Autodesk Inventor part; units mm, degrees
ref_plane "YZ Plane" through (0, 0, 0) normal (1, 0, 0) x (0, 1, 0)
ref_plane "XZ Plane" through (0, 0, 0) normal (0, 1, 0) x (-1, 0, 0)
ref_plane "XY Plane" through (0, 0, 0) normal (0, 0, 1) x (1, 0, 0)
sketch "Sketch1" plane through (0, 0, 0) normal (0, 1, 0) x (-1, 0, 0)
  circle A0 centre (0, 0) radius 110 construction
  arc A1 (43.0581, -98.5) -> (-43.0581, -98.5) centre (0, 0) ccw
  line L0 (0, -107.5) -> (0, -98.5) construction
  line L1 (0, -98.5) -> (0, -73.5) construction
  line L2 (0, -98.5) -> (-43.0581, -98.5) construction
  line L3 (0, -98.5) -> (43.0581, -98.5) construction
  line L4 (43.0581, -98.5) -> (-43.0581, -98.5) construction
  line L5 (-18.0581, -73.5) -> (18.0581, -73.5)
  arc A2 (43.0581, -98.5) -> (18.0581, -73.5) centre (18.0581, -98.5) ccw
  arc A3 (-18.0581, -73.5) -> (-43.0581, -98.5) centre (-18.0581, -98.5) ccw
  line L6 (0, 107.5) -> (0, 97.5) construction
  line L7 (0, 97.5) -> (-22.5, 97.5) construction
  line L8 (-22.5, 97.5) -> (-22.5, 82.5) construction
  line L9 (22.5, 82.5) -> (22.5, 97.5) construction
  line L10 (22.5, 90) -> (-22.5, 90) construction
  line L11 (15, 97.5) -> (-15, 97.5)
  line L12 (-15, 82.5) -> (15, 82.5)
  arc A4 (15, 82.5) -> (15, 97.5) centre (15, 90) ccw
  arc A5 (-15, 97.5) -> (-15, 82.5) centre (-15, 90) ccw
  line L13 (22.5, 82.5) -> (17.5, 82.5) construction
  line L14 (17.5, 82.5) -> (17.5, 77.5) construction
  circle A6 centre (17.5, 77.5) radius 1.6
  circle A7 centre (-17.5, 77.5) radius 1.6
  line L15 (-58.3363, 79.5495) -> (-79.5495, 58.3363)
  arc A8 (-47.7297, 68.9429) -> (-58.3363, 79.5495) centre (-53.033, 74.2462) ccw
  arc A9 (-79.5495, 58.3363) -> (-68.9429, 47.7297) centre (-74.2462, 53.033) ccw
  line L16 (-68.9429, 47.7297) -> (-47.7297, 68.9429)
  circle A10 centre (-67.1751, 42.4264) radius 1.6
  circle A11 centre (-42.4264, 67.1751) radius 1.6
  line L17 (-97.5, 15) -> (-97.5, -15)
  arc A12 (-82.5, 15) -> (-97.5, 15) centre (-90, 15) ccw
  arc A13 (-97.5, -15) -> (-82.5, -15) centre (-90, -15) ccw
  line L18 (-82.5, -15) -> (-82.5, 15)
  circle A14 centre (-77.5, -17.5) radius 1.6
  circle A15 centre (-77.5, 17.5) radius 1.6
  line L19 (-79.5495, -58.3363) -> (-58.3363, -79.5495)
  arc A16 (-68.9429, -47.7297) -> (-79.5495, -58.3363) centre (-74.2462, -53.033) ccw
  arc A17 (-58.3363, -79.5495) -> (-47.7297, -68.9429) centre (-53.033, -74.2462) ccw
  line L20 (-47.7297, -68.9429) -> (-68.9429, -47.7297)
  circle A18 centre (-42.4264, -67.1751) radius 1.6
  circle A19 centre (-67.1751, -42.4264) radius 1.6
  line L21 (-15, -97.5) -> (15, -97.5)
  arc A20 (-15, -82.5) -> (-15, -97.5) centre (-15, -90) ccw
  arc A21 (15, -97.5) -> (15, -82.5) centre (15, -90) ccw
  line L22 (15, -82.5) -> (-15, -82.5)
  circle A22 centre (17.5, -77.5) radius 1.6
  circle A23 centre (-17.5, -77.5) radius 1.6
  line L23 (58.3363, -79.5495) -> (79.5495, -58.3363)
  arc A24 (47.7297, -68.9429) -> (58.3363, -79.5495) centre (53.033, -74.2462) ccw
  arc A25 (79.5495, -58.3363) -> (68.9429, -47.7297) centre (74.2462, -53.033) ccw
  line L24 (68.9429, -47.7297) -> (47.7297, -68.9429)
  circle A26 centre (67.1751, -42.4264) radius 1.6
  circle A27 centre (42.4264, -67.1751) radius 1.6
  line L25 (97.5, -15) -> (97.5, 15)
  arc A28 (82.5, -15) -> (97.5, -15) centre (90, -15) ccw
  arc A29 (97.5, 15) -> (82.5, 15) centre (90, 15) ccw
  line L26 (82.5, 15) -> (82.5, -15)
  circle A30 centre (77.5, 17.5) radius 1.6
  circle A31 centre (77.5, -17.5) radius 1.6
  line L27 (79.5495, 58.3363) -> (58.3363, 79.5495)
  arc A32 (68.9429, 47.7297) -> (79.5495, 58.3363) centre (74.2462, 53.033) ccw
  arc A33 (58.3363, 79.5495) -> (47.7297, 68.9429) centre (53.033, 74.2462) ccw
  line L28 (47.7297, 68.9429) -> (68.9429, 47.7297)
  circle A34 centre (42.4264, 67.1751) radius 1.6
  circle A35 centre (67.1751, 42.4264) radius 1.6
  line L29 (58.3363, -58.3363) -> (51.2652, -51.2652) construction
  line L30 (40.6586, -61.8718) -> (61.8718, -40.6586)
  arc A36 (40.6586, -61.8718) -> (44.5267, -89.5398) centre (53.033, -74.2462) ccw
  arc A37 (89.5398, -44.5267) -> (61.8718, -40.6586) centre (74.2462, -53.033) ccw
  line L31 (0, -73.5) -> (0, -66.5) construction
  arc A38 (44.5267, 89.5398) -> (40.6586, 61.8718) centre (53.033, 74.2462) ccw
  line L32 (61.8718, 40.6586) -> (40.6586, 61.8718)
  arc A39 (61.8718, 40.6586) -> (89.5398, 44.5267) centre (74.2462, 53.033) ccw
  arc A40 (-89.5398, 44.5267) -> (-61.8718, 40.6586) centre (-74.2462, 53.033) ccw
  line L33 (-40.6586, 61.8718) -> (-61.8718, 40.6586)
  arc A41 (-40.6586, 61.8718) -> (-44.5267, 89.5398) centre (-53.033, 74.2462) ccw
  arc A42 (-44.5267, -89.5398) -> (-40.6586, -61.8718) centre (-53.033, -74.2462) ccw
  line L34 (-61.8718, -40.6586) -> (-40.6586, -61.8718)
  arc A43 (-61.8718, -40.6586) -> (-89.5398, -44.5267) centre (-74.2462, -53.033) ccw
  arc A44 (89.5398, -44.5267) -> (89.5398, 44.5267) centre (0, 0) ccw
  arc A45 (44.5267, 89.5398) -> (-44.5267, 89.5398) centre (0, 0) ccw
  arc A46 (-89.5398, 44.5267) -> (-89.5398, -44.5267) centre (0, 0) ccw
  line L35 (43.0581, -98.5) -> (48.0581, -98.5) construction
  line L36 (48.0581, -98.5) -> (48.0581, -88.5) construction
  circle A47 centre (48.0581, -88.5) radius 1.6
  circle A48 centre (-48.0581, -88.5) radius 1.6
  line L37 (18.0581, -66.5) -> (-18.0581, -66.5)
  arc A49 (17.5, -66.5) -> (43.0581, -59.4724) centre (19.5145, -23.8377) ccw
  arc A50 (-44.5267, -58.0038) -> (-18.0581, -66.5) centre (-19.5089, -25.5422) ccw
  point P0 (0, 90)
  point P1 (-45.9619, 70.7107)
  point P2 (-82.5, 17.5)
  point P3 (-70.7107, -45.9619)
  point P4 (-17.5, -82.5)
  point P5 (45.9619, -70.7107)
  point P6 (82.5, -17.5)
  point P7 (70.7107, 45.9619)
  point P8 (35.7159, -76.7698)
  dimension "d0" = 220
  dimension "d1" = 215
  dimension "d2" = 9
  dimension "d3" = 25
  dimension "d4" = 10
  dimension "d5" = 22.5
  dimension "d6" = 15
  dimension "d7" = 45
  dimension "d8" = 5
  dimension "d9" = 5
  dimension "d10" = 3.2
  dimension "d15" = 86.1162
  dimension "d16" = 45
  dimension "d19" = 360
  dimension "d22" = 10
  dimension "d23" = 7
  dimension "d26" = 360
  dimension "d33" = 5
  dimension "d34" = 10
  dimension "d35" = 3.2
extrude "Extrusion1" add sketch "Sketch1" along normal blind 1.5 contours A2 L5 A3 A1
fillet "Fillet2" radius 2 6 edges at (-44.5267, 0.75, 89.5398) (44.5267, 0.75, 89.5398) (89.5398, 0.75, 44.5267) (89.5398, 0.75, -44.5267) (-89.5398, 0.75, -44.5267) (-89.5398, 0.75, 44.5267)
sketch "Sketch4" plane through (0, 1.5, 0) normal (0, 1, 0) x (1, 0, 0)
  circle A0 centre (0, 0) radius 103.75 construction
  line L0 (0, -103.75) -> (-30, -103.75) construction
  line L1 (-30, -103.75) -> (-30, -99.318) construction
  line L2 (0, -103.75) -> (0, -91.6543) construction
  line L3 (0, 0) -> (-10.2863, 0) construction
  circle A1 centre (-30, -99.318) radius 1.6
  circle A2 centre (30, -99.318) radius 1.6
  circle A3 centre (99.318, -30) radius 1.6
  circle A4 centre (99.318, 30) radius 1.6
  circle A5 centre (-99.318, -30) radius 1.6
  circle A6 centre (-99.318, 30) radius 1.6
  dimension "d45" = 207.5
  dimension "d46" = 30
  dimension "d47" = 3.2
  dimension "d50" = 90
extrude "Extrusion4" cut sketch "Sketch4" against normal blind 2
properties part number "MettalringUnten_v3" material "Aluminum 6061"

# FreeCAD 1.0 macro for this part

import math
import FreeCAD as App
import Part
import Sketcher
from FreeCAD import Vector


def edges_at(feature, points):
    """Names of the edges that pass closest to the given points."""
    edges = feature.Shape.Edges
    near = lambda p: min(range(len(edges)), key=lambda i: edges[i].distToShape(Part.Vertex(*p))[0])
    return sorted({f"Edge{near(p) + 1}" for p in points})

doc = App.newDocument("Part")
params = doc.addObject("Spreadsheet::Sheet", "Params")
for row, (alias, value) in enumerate([
    ("sketch1_radius", "25 mm"),
    ("sketch1_diameter", "3.2 mm"),
    ("sketch1_radius2", "107.5 mm"),
    ("sketch1_radius3", "7.5 mm"),
    ("sketch1_radius4", "100 mm"),
    ("pad1_length", "1.5 mm"),
    ("fillet_radius", "2 mm"),
    ("sketch2_diameter", "3.2 mm"),
    ("pocket1_length", "2 mm"),
], start=1):
    params.set(f"A{row}", alias)
    params.set(f"B{row}", "=" + value)
    params.setAlias(f"B{row}", alias)

body = doc.addObject("PartDesign::Body", "Body")

sketch1 = body.newObject("Sketcher::SketchObject", "Sketch")
sketch1.AttachmentSupport = (doc.getObject("XZ_Plane"), [""])
sketch1.MapMode = "FlatFace"
sketch1.addGeometry(Part.ArcOfCircle(Part.Circle(Vector(-18.0581, -98.5, 0), Vector(0, 0, 1), 25), math.radians(90), math.radians(180)), False)
sketch1.addGeometry(Part.ArcOfCircle(Part.Circle(Vector(0, 0, 0), Vector(0, 0, 1), 107.5), math.radians(-66.38803), math.radians(246.38803)), False)
sketch1.addGeometry(Part.ArcOfCircle(Part.Circle(Vector(18.0581, -98.5, 0), Vector(0, 0, 1), 25), math.radians(0), math.radians(90)), False)
sketch1.addGeometry(Part.LineSegment(Vector(18.0581, -73.5, 0), Vector(-18.0581, -73.5, 0)), False)
sketch1.addGeometry(Part.LineSegment(Vector(58.3363, -79.5495, 0), Vector(79.5495, -58.3363, 0)), False)
sketch1.addGeometry(Part.ArcOfCircle(Part.Circle(Vector(74.2462, -53.033, 0), Vector(0, 0, 1), 7.499999), math.radians(-45), math.radians(135)), False)
sketch1.addGeometry(Part.LineSegment(Vector(68.9429, -47.7297, 0), Vector(47.7297, -68.9429, 0)), False)
sketch1.addGeometry(Part.ArcOfCircle(Part.Circle(Vector(53.033, -74.2462, 0), Vector(0, 0, 1), 7.499999), math.radians(135), math.radians(315)), False)
sketch1.addGeometry(Part.Circle(Vector(48.0581, -88.5, 0), Vector(0, 0, 1), 1.6), False)
sketch1.addGeometry(Part.Circle(Vector(42.4264, -67.1751, 0), Vector(0, 0, 1), 1.6), False)
sketch1.addGeometry(Part.Circle(Vector(67.1751, -42.4264, 0), Vector(0, 0, 1), 1.6), False)
sketch1.addGeometry(Part.Circle(Vector(-48.0581, -88.5, 0), Vector(0, 0, 1), 1.6), False)
sketch1.addGeometry(Part.Circle(Vector(-42.4264, -67.1751, 0), Vector(0, 0, 1), 1.6), False)
sketch1.addGeometry(Part.LineSegment(Vector(-79.5495, -58.3363, 0), Vector(-58.3363, -79.5495, 0)), False)
sketch1.addGeometry(Part.ArcOfCircle(Part.Circle(Vector(-53.033, -74.2462, 0), Vector(0, 0, 1), 7.499999), math.radians(-135), math.radians(45)), False)
sketch1.addGeometry(Part.LineSegment(Vector(-47.7297, -68.9429, 0), Vector(-68.9429, -47.7297, 0)), False)
sketch1.addGeometry(Part.ArcOfCircle(Part.Circle(Vector(-74.2462, -53.033, 0), Vector(0, 0, 1), 7.499999), math.radians(45), math.radians(225)), False)
sketch1.addGeometry(Part.Circle(Vector(-67.1751, -42.4264, 0), Vector(0, 0, 1), 1.6), False)
sketch1.addGeometry(Part.Circle(Vector(67.1751, 42.4264, 0), Vector(0, 0, 1), 1.6), False)
sketch1.addGeometry(Part.LineSegment(Vector(79.5495, 58.3363, 0), Vector(58.3363, 79.5495, 0)), False)
sketch1.addGeometry(Part.ArcOfCircle(Part.Circle(Vector(53.033, 74.2462, 0), Vector(0, 0, 1), 7.499999), math.radians(45), math.radians(225)), False)
sketch1.addGeometry(Part.LineSegment(Vector(47.7297, 68.9429, 0), Vector(68.9429, 47.7297, 0)), False)
sketch1.addGeometry(Part.ArcOfCircle(Part.Circle(Vector(74.2462, 53.033, 0), Vector(0, 0, 1), 7.499999), math.radians(-135), math.radians(45)), False)
sketch1.addGeometry(Part.Circle(Vector(42.4264, 67.1751, 0), Vector(0, 0, 1), 1.6), False)
sketch1.addGeometry(Part.LineSegment(Vector(-61.8718, -40.6586, 0), Vector(-43.05805, -59.47235, 0)), False)
sketch1.addGeometry(Part.ArcOfCircle(Part.Circle(Vector(-19.5145, -23.8377, 0), Vector(0, 0, 1), 42.709836), math.radians(-123.452464), math.radians(-87.29652)), False)
sketch1.addGeometry(Part.LineSegment(Vector(-17.5, -66.5, 0), Vector(18.0581, -66.5, 0)), False)
sketch1.addGeometry(Part.ArcOfCircle(Part.Circle(Vector(19.5089, -25.5422, 0), Vector(0, 0, 1), 40.983482), math.radians(-92.028673), math.radians(-52.378952)), False)
sketch1.addGeometry(Part.LineSegment(Vector(44.52665, -58.00375, 0), Vector(61.8718, -40.6586, 0)), False)
sketch1.addGeometry(Part.ArcOfCircle(Part.Circle(Vector(74.2462, -53.033, 0), Vector(0, 0, 1), 17.500044), math.radians(29.082811), math.radians(135)), False)
sketch1.addGeometry(Part.ArcOfCircle(Part.Circle(Vector(0, 0, 0), Vector(0, 0, 1), 100.000014), math.radians(-26.440419), math.radians(26.440419)), False)
sketch1.addGeometry(Part.ArcOfCircle(Part.Circle(Vector(74.2462, 53.033, 0), Vector(0, 0, 1), 17.500038), math.radians(-135), math.radians(-29.082811)), False)
sketch1.addGeometry(Part.LineSegment(Vector(61.8718, 40.6586, 0), Vector(40.6586, 61.8718, 0)), False)
sketch1.addGeometry(Part.ArcOfCircle(Part.Circle(Vector(53.033, 74.2462, 0), Vector(0, 0, 1), 17.500044), math.radians(119.082811), math.radians(225)), False)
sketch1.addGeometry(Part.ArcOfCircle(Part.Circle(Vector(0, 0, 0), Vector(0, 0, 1), 100.000014), math.radians(63.559581), math.radians(116.440419)), False)
sketch1.addGeometry(Part.ArcOfCircle(Part.Circle(Vector(-53.033, 74.2462, 0), Vector(0, 0, 1), 17.500038), math.radians(-45), math.radians(60.917189)), False)
sketch1.addGeometry(Part.LineSegment(Vector(-40.6586, 61.8718, 0), Vector(-61.8718, 40.6586, 0)), False)
sketch1.addGeometry(Part.ArcOfCircle(Part.Circle(Vector(-74.2462, 53.033, 0), Vector(0, 0, 1), 17.500044), math.radians(-150.917189), math.radians(-45)), False)
sketch1.addGeometry(Part.ArcOfCircle(Part.Circle(Vector(0, 0, 0), Vector(0, 0, 1), 100.000014), math.radians(153.559581), math.radians(206.440419)), False)
sketch1.addGeometry(Part.ArcOfCircle(Part.Circle(Vector(-74.2462, -53.033, 0), Vector(0, 0, 1), 17.500038), math.radians(45), math.radians(150.917189)), False)
sketch1.addGeometry(Part.Circle(Vector(-67.1751, 42.4264, 0), Vector(0, 0, 1), 1.6), False)
sketch1.addGeometry(Part.Circle(Vector(-42.4264, 67.1751, 0), Vector(0, 0, 1), 1.6), False)
sketch1.addGeometry(Part.LineSegment(Vector(-58.3363, 79.5495, 0), Vector(-79.5495, 58.3363, 0)), False)
sketch1.addGeometry(Part.ArcOfCircle(Part.Circle(Vector(-74.2462, 53.033, 0), Vector(0, 0, 1), 7.499999), math.radians(135), math.radians(315)), False)
sketch1.addGeometry(Part.LineSegment(Vector(-68.9429, 47.7297, 0), Vector(-47.7297, 68.9429, 0)), False)
sketch1.addGeometry(Part.ArcOfCircle(Part.Circle(Vector(-53.033, 74.2462, 0), Vector(0, 0, 1), 7.499999), math.radians(-45), math.radians(135)), False)
sketch1.addConstraint(Sketcher.Constraint("Coincident", 0, 2, 1, 2))
sketch1.addConstraint(Sketcher.Constraint("Coincident", 1, 1, 2, 1))
sketch1.addConstraint(Sketcher.Constraint("Tangent", 2, 2, 3, 1))
sketch1.addConstraint(Sketcher.Constraint("Tangent", 3, 2, 0, 1))
sketch1.addConstraint(Sketcher.Constraint("Tangent", 4, 2, 5, 1))
sketch1.addConstraint(Sketcher.Constraint("Tangent", 5, 2, 6, 1))
sketch1.addConstraint(Sketcher.Constraint("Tangent", 6, 2, 7, 1))
sketch1.addConstraint(Sketcher.Constraint("Tangent", 7, 2, 4, 1))
sketch1.addConstraint(Sketcher.Constraint("Tangent", 13, 2, 14, 1))
sketch1.addConstraint(Sketcher.Constraint("Tangent", 14, 2, 15, 1))
sketch1.addConstraint(Sketcher.Constraint("Tangent", 15, 2, 16, 1))
sketch1.addConstraint(Sketcher.Constraint("Tangent", 16, 2, 13, 1))
sketch1.addConstraint(Sketcher.Constraint("Tangent", 19, 2, 20, 1))
sketch1.addConstraint(Sketcher.Constraint("Tangent", 20, 2, 21, 1))
sketch1.addConstraint(Sketcher.Constraint("Tangent", 21, 2, 22, 1))
sketch1.addConstraint(Sketcher.Constraint("Tangent", 22, 2, 19, 1))
sketch1.addConstraint(Sketcher.Constraint("Coincident", 24, 2, 25, 1))
sketch1.addConstraint(Sketcher.Constraint("Coincident", 25, 2, 26, 1))
sketch1.addConstraint(Sketcher.Constraint("Coincident", 26, 2, 27, 1))
sketch1.addConstraint(Sketcher.Constraint("Coincident", 27, 2, 28, 1))
sketch1.addConstraint(Sketcher.Constraint("Tangent", 28, 2, 29, 2))
sketch1.addConstraint(Sketcher.Constraint("Coincident", 29, 1, 30, 1))
sketch1.addConstraint(Sketcher.Constraint("Coincident", 30, 2, 31, 2))
sketch1.addConstraint(Sketcher.Constraint("Tangent", 31, 1, 32, 1))
sketch1.addConstraint(Sketcher.Constraint("Tangent", 32, 2, 33, 2))
sketch1.addConstraint(Sketcher.Constraint("Coincident", 33, 1, 34, 1))
sketch1.addConstraint(Sketcher.Constraint("Coincident", 34, 2, 35, 2))
sketch1.addConstraint(Sketcher.Constraint("Tangent", 35, 1, 36, 1))
sketch1.addConstraint(Sketcher.Constraint("Tangent", 36, 2, 37, 2))
sketch1.addConstraint(Sketcher.Constraint("Coincident", 37, 1, 38, 1))
sketch1.addConstraint(Sketcher.Constraint("Coincident", 38, 2, 39, 2))
sketch1.addConstraint(Sketcher.Constraint("Tangent", 39, 1, 24, 1))
sketch1.addConstraint(Sketcher.Constraint("Tangent", 42, 2, 43, 1))
sketch1.addConstraint(Sketcher.Constraint("Tangent", 43, 2, 44, 1))
sketch1.addConstraint(Sketcher.Constraint("Tangent", 44, 2, 45, 1))
sketch1.addConstraint(Sketcher.Constraint("Tangent", 45, 2, 42, 1))
sketch1.addConstraint(Sketcher.Constraint("Horizontal", 3))
sketch1.addConstraint(Sketcher.Constraint("Horizontal", 26))
sketch1.addConstraint(Sketcher.Constraint("Coincident", 1, 3, -1, 1))
sketch1.addConstraint(Sketcher.Constraint("Coincident", 30, 3, -1, 1))
sketch1.addConstraint(Sketcher.Constraint("Coincident", 34, 3, -1, 1))
sketch1.addConstraint(Sketcher.Constraint("Coincident", 38, 3, -1, 1))
sketch1.addConstraint(Sketcher.Constraint("Coincident", 29, 3, 5, 3))
sketch1.addConstraint(Sketcher.Constraint("Coincident", 31, 3, 22, 3))
sketch1.addConstraint(Sketcher.Constraint("Coincident", 33, 3, 20, 3))
sketch1.addConstraint(Sketcher.Constraint("Coincident", 39, 3, 16, 3))
sketch1.addConstraint(Sketcher.Constraint("Coincident", 43, 3, 37, 3))
sketch1.addConstraint(Sketcher.Constraint("Coincident", 45, 3, 35, 3))
sketch1.addConstraint(Sketcher.Constraint("Equal", 0, 2))
sketch1.addConstraint(Sketcher.Constraint("Equal", 5, 7))
sketch1.addConstraint(Sketcher.Constraint("Equal", 8, 9))
sketch1.addConstraint(Sketcher.Constraint("Equal", 9, 10))
sketch1.addConstraint(Sketcher.Constraint("Equal", 10, 11))
sketch1.addConstraint(Sketcher.Constraint("Equal", 11, 12))
sketch1.addConstraint(Sketcher.Constraint("Equal", 7, 14))
sketch1.addConstraint(Sketcher.Constraint("Equal", 14, 16))
sketch1.addConstraint(Sketcher.Constraint("Equal", 12, 17))
sketch1.addConstraint(Sketcher.Constraint("Equal", 17, 18))
sketch1.addConstraint(Sketcher.Constraint("Equal", 16, 20))
sketch1.addConstraint(Sketcher.Constraint("Equal", 20, 22))
sketch1.addConstraint(Sketcher.Constraint("Equal", 18, 23))
sketch1.addConstraint(Sketcher.Constraint("Equal", 29, 31))
sketch1.addConstraint(Sketcher.Constraint("Equal", 31, 33))
sketch1.addConstraint(Sketcher.Constraint("Equal", 30, 34))
sketch1.addConstraint(Sketcher.Constraint("Equal", 33, 35))
sketch1.addConstraint(Sketcher.Constraint("Equal", 35, 37))
sketch1.addConstraint(Sketcher.Constraint("Equal", 34, 38))
sketch1.addConstraint(Sketcher.Constraint("Equal", 37, 39))
sketch1.addConstraint(Sketcher.Constraint("Equal", 23, 40))
sketch1.addConstraint(Sketcher.Constraint("Equal", 40, 41))
sketch1.addConstraint(Sketcher.Constraint("Equal", 22, 43))
sketch1.addConstraint(Sketcher.Constraint("Equal", 43, 45))
sketch1.addConstraint(Sketcher.Constraint("Symmetric", 17, 3, 18, 3, -1, 1))
sketch1.addConstraint(Sketcher.Constraint("Symmetric", 14, 3, 20, 3, -1, 1))
sketch1.addConstraint(Sketcher.Constraint("Symmetric", 16, 3, 22, 3, -1, 1))
sketch1.addConstraint(Sketcher.Constraint("Symmetric", 12, 3, 23, 3, -1, 1))
sketch1.addConstraint(Sketcher.Constraint("Symmetric", 7, 3, 35, 3, -1, 1))
sketch1.addConstraint(Sketcher.Constraint("Symmetric", 5, 3, 37, 3, -1, 1))
sketch1.addConstraint(Sketcher.Constraint("Symmetric", 10, 3, 40, 3, -1, 1))
sketch1.addConstraint(Sketcher.Constraint("Symmetric", 9, 3, 41, 3, -1, 1))
sketch1.addConstraint(Sketcher.Constraint("Symmetric", 8, 3, 11, 3, -2))
sketch1.addConstraint(Sketcher.Constraint("Symmetric", 9, 3, 12, 3, -2))
sketch1.addConstraint(Sketcher.Constraint("Symmetric", 7, 3, 14, 3, -2))
sketch1.addConstraint(Sketcher.Constraint("Symmetric", 5, 3, 16, 3, -2))
sketch1.addConstraint(Sketcher.Constraint("Symmetric", 10, 3, 17, 3, -2))
sketch1.addConstraint(Sketcher.Constraint("Perpendicular", 6, 13))
sketch1.addConstraint(Sketcher.Constraint("Parallel", 21, 24))
sketch1.addConstraint(Sketcher.Constraint("Perpendicular", 24, 28))
sketch1.addConstraint(Sketcher.Constraint("Horizontal", 2, 3, 0, 2))
sketch1.addConstraint(Sketcher.Constraint("Horizontal", 0, 2, 1, 1))
sketch1.addConstraint(Sketcher.Constraint("Vertical", 0, 2, 24, 2))
sketch1.addConstraint(Sketcher.Constraint("Vertical", 2, 2, 26, 2))
sketch1.addConstraint(Sketcher.Constraint("Vertical", 27, 2, 33, 1))
sketch1.addConstraint(Sketcher.Constraint("Radius", 0, 25.0))
sketch1.addConstraint(Sketcher.Constraint("Diameter", 8, 3.2))
sketch1.addConstraint(Sketcher.Constraint("Radius", 1, 107.5))
sketch1.addConstraint(Sketcher.Constraint("Radius", 5, 7.5))
sketch1.addConstraint(Sketcher.Constraint("Radius", 30, 100.0))
sketch1.addConstraint(Sketcher.Constraint("Radius", 29, 17.5))
sketch1.addConstraint(Sketcher.Constraint("Distance", 4, 30.0))
sketch1.addConstraint(Sketcher.Constraint("DistanceY", 0, 3, -1, 1, 98.5))
sketch1.addConstraint(Sketcher.Constraint("DistanceY", 8, 3, -1, 1, 88.5))
sketch1.addConstraint(Sketcher.Constraint("DistanceX", 25, 2, -1, 1, 17.5))
sketch1.addConstraint(Sketcher.Constraint("DistanceY", 25, 2, -1, 1, 66.5))
sketch1.addConstraint(Sketcher.Constraint("Radius", 25, 42.7098))
sketch1.addConstraint(Sketcher.Constraint("Radius", 27, 40.9835))
sketch1.addConstraint(Sketcher.Constraint("DistanceY", 5, 3, -1, 1, 53.033))
sketch1.addConstraint(Sketcher.Constraint("DistanceX", -1, 1, 7, 3, 53.033))
sketch1.addConstraint(Sketcher.Constraint("DistanceX", -1, 1, 8, 3, 48.058))
sketch1.addConstraint(Sketcher.Constraint("DistanceY", 9, 3, -1, 1, 67.175))
sketch1.addConstraint(Sketcher.Constraint("DistanceX", -1, 1, 10, 3, 67.175))
sketch1.addConstraint(Sketcher.Constraint("DistanceX", -1, 1, 9, 3, 42.4264))
sketch1.addConstraint(Sketcher.Constraint("DistanceY", 10, 3, -1, 1, 42.4264))
sketch1.setExpression("Constraints[93]", "Params.sketch1_radius")
sketch1.setExpression("Constraints[94]", "Params.sketch1_diameter")
sketch1.setExpression("Constraints[95]", "Params.sketch1_radius2")
sketch1.setExpression("Constraints[96]", "Params.sketch1_radius3")
sketch1.setExpression("Constraints[97]", "Params.sketch1_radius4")
pad1 = body.newObject("PartDesign::Pad", "Pad")
pad1.Profile = sketch1
pad1.setExpression("Length", "Params.pad1_length")
pad1.Reversed = True
doc.recompute()

fillet = body.newObject("PartDesign::Fillet", "Fillet")
fillet.Base = (pad1, edges_at(pad1, [
    (-44.527, 0.75, 89.54),
    (44.527, 0.75, 89.54),
    (89.54, 0.75, 44.527),
    (89.54, 0.75, -44.527),
    (-89.54, 0.75, -44.527),
    (-89.54, 0.75, 44.527),
]))
fillet.setExpression("Radius", "Params.fillet_radius")

sketch2 = body.newObject("Sketcher::SketchObject", "Sketch001")
sketch2.AttachmentSupport = (doc.getObject("XZ_Plane"), [""])
sketch2.MapMode = "FlatFace"
sketch2.AttachmentOffset = App.Placement(Vector(0, 0, -1.5), App.Rotation())
sketch2.addGeometry(Part.Circle(Vector(-30, 99.318, 0), Vector(0, 0, 1), 1.6), False)
sketch2.addGeometry(Part.Circle(Vector(30, 99.318, 0), Vector(0, 0, 1), 1.6), False)
sketch2.addGeometry(Part.Circle(Vector(99.318, 30, 0), Vector(0, 0, 1), 1.6), False)
sketch2.addGeometry(Part.Circle(Vector(99.318, -30, 0), Vector(0, 0, 1), 1.6), False)
sketch2.addGeometry(Part.Circle(Vector(-99.318, 30, 0), Vector(0, 0, 1), 1.6), False)
sketch2.addGeometry(Part.Circle(Vector(-99.318, -30, 0), Vector(0, 0, 1), 1.6), False)
sketch2.addConstraint(Sketcher.Constraint("Equal", 0, 1))
sketch2.addConstraint(Sketcher.Constraint("Equal", 1, 2))
sketch2.addConstraint(Sketcher.Constraint("Equal", 2, 3))
sketch2.addConstraint(Sketcher.Constraint("Equal", 3, 4))
sketch2.addConstraint(Sketcher.Constraint("Equal", 4, 5))
sketch2.addConstraint(Sketcher.Constraint("Symmetric", 3, 3, 4, 3, -1, 1))
sketch2.addConstraint(Sketcher.Constraint("Symmetric", 2, 3, 5, 3, -1, 1))
sketch2.addConstraint(Sketcher.Constraint("Symmetric", 0, 3, 1, 3, -2))
sketch2.addConstraint(Sketcher.Constraint("Symmetric", 2, 3, 4, 3, -2))
sketch2.addConstraint(Sketcher.Constraint("Diameter", 0, 3.2))
sketch2.addConstraint(Sketcher.Constraint("DistanceX", 0, 3, -1, 1, 30.0))
sketch2.addConstraint(Sketcher.Constraint("DistanceY", -1, 1, 2, 3, 30.0))
sketch2.addConstraint(Sketcher.Constraint("DistanceY", -1, 1, 0, 3, 99.318))
sketch2.addConstraint(Sketcher.Constraint("DistanceX", -1, 1, 2, 3, 99.318))
sketch2.setExpression("Constraints[9]", "Params.sketch2_diameter")
pocket1 = body.newObject("PartDesign::Pocket", "Pocket")
pocket1.Profile = sketch2
pocket1.setExpression("Length", "Params.pocket1_length")
pocket1.Reversed = True

doc.recompute()
